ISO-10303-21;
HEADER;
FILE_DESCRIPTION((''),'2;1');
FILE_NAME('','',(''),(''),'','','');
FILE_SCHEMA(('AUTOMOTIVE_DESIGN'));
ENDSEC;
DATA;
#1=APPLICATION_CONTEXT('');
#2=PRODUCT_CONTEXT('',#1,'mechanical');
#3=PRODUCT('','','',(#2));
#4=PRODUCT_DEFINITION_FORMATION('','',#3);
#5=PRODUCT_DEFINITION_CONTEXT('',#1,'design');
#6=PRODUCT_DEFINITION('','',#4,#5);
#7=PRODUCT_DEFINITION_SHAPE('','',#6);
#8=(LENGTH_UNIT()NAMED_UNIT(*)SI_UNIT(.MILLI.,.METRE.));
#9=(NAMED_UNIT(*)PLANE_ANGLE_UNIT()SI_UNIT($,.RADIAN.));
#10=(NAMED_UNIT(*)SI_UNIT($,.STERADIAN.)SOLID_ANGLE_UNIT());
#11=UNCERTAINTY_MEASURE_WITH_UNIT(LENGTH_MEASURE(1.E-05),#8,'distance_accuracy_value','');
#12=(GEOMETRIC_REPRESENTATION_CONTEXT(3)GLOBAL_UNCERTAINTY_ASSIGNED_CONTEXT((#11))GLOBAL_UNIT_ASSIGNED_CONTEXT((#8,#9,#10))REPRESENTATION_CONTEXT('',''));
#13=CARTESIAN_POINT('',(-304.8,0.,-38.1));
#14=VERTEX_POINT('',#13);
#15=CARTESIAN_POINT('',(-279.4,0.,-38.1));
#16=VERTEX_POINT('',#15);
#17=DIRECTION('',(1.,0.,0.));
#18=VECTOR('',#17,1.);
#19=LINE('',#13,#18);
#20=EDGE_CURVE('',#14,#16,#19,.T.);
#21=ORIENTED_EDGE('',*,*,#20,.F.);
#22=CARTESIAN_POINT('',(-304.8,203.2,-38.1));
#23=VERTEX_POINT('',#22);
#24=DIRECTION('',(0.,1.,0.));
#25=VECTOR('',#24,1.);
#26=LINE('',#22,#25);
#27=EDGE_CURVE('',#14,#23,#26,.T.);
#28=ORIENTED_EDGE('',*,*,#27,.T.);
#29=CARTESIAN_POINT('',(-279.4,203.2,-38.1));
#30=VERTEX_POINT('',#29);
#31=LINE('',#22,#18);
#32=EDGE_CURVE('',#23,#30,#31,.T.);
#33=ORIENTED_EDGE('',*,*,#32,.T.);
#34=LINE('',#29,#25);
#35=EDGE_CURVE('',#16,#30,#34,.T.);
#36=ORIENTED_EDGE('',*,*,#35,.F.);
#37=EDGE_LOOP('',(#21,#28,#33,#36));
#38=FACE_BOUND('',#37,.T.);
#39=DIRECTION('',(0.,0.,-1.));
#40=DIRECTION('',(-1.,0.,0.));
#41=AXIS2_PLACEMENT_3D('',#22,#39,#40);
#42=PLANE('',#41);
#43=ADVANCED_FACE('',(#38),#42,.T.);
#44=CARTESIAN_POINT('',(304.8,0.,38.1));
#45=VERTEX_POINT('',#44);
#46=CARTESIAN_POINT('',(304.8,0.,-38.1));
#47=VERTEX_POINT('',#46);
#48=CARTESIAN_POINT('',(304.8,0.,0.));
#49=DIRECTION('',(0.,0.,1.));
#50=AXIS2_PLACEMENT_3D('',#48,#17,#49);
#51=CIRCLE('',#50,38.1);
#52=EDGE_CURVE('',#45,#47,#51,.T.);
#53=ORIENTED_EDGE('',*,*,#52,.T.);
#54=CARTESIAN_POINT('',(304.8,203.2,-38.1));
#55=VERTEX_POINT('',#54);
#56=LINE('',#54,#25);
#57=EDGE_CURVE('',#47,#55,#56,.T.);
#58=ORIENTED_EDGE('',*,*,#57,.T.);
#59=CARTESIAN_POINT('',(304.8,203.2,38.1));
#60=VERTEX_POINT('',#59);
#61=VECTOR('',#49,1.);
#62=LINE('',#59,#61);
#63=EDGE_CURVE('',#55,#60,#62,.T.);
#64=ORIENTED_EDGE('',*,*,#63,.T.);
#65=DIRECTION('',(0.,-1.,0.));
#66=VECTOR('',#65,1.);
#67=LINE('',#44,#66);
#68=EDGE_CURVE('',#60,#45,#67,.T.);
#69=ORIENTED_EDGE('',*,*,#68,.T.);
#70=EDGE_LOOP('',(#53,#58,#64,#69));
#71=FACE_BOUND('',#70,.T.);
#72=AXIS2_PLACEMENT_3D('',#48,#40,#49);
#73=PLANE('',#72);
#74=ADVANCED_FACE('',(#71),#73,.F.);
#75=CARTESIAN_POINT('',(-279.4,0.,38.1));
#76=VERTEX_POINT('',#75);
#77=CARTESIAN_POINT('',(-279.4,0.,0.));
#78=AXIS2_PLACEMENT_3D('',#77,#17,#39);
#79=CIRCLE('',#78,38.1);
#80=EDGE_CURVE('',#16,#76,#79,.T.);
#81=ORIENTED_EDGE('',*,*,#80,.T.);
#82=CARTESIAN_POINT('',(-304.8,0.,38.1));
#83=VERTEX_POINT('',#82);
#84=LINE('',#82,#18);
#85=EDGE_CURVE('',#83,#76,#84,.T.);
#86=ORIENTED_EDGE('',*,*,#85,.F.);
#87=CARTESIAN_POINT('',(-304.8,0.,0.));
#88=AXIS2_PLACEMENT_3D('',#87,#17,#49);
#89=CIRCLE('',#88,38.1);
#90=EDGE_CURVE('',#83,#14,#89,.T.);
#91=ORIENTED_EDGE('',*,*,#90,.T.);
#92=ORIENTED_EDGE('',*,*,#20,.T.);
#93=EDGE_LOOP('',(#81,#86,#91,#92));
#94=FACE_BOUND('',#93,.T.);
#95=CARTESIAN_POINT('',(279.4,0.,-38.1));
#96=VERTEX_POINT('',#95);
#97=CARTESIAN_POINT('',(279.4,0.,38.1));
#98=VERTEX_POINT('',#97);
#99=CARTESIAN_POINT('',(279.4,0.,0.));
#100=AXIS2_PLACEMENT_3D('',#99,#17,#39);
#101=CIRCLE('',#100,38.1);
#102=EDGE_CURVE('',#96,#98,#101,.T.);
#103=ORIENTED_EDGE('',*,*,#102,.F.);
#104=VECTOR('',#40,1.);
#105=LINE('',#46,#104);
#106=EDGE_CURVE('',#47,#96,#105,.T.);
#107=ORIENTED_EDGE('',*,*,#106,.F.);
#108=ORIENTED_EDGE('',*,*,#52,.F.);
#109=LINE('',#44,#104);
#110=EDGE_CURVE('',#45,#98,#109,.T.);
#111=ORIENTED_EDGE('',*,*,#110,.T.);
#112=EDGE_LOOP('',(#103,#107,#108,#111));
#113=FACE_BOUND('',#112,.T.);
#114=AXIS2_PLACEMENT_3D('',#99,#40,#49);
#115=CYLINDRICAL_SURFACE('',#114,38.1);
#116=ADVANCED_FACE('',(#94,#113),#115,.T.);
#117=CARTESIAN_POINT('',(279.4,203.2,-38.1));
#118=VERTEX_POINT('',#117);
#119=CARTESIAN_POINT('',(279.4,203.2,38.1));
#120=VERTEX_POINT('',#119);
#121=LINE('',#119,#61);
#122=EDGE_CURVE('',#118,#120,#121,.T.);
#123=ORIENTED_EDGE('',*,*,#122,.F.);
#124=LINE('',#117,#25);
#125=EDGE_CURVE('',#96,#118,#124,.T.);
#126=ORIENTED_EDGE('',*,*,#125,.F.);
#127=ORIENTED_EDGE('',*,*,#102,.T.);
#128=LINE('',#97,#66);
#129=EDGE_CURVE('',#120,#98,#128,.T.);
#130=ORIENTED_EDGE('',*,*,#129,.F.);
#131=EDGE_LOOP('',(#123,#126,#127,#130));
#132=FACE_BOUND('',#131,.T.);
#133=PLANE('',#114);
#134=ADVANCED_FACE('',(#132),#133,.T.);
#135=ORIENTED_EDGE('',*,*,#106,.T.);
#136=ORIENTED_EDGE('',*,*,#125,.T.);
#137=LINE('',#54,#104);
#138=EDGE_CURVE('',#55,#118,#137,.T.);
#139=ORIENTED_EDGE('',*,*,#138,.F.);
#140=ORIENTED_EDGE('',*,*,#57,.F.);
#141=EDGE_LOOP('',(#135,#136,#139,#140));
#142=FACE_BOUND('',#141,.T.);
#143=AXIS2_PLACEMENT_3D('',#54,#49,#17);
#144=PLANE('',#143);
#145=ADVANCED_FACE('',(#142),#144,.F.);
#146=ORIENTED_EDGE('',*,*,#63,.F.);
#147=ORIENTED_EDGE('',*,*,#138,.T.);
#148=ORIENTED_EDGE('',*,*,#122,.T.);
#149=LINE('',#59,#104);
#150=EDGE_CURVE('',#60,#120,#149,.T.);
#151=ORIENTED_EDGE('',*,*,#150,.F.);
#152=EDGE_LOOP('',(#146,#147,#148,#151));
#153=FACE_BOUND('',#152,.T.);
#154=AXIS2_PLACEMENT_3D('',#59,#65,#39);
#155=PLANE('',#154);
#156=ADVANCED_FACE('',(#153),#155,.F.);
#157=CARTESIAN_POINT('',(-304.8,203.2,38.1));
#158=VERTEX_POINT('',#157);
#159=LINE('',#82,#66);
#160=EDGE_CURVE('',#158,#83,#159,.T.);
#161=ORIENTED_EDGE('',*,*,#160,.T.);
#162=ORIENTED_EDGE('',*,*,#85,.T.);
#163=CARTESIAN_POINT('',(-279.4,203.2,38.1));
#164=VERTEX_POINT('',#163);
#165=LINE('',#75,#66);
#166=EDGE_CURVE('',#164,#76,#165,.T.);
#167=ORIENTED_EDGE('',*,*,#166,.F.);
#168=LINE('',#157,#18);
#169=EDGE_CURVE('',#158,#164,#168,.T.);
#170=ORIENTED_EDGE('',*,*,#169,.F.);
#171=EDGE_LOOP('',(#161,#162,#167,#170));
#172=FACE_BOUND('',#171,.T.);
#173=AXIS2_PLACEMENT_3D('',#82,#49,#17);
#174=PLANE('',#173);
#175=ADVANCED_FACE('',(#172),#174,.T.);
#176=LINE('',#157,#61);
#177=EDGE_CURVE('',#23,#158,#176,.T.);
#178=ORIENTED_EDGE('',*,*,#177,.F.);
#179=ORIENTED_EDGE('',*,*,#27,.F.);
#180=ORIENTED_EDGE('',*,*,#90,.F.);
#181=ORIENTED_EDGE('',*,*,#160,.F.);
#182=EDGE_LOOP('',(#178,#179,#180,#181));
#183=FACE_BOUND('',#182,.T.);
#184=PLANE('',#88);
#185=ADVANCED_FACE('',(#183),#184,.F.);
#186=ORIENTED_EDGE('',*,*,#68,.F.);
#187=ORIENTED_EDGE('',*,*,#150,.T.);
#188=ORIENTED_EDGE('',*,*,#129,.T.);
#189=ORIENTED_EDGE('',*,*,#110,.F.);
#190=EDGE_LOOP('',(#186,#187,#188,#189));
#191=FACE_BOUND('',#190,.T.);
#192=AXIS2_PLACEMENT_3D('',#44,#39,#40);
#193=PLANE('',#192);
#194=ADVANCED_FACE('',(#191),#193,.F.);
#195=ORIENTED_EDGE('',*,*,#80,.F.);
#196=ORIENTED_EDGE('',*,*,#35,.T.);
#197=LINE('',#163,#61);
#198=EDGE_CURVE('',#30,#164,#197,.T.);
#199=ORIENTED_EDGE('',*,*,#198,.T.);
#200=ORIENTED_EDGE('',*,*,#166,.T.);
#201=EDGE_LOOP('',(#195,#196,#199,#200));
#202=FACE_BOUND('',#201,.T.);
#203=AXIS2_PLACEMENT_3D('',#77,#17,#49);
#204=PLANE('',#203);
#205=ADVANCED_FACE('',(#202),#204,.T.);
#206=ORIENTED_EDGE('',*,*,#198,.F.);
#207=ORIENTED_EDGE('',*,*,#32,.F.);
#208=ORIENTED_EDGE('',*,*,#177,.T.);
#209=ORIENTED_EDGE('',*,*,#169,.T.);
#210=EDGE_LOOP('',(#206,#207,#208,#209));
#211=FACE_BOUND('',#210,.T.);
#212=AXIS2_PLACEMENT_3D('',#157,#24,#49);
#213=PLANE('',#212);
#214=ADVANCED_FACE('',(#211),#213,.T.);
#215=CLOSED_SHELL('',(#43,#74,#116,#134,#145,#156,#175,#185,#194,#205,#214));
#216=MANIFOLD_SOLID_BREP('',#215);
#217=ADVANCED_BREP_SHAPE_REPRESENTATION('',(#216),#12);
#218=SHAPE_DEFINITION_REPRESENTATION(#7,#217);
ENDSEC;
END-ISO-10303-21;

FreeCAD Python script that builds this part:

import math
import FreeCAD as App
import Part
import Sketcher
Q = App.Units.Quantity

doc = App.newDocument("Part")
body = doc.addObject("PartDesign::Body", "Body")

sketch1 = doc.addObject("Sketcher::SketchObject", "Sketch")
body.addObject(sketch1)
sketch1.AttachmentSupport = (doc.YZ_Plane, [""])
sketch1.MapMode = "FlatFace"
sketch1.addGeometry(Part.Circle(App.Vector(0, 0, 0), App.Vector(0, 0, 1), 38), False)
sketch1.addConstraint([
    Sketcher.Constraint("Coincident", 0, 3, -1, 1),
    Sketcher.Constraint("Diameter", 0, Q("3 in")),
])
pad1 = doc.addObject("PartDesign::Pad", "Pad")
body.addObject(pad1)
pad1.Profile = sketch1
pad1.Length = Q("11 in")

sketch2 = doc.addObject("Sketcher::SketchObject", "Sketch001")
body.addObject(sketch2)
sketch2.AttachmentSupport = (doc.YZ_Plane, [""])
sketch2.MapMode = "FlatFace"
sketch2.AttachmentOffset = App.Placement(App.Vector(0, 0, 11 * 25.4), App.Rotation())
sketch2.addGeometry([
    Part.LineSegment(App.Vector(203, 38, 0), App.Vector(0, 38, 0)),
    Part.ArcOfCircle(Part.Circle(App.Vector(0, 0, 0), App.Vector(0, 0, 1), 38), math.radians(90), math.radians(270)),
    Part.LineSegment(App.Vector(0, -38, 0), App.Vector(203, -38, 0)),
    Part.LineSegment(App.Vector(203, -38, 0), App.Vector(203, 38, 0)),
], False)
sketch2.addConstraint([
    Sketcher.Constraint("Tangent", 0, 2, 1, 1),
    Sketcher.Constraint("Tangent", 1, 2, 2, 1),
    Sketcher.Constraint("Coincident", 2, 2, 3, 1),
    Sketcher.Constraint("Coincident", 3, 2, 0, 1),
    Sketcher.Constraint("Horizontal", 0),
    Sketcher.Constraint("Horizontal", 2),
    Sketcher.Constraint("Vertical", 3),
    Sketcher.Constraint("Coincident", 1, 3, -1, 1),
    Sketcher.Constraint("Radius", 1, Q("1.5 in")),
    Sketcher.Constraint("DistanceX", 0, 2, 0, 1, Q("8 in")),
])
pad2 = doc.addObject("PartDesign::Pad", "Pad001")
body.addObject(pad2)
pad2.Profile = sketch2
pad2.Length = Q("1 in")
doc.recompute()

mirrored = doc.addObject("PartDesign::Mirrored", "Mirrored")
body.addObject(mirrored)
mirrored.Originals = [pad1, pad2]
mirrored.MirrorPlane = (doc.YZ_Plane, [""])
body.Tip = mirrored

doc.recompute()
